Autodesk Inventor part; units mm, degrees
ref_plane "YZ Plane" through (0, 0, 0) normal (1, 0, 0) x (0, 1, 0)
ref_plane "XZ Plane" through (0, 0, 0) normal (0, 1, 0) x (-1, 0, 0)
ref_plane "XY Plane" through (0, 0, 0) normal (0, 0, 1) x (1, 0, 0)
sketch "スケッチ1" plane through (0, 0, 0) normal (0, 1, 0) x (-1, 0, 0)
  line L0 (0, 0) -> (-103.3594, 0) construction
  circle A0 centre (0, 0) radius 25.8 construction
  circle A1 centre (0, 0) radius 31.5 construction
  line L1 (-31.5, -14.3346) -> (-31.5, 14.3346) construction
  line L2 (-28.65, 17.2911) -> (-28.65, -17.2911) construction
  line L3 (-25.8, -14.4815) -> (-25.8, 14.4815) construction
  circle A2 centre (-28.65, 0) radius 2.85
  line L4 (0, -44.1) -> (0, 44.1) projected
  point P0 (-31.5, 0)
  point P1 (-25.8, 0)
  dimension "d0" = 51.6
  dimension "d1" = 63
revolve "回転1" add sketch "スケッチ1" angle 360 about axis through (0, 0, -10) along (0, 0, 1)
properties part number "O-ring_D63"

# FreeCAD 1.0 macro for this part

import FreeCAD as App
import Part
import Sketcher
from FreeCAD import Vector
Q = App.Units.Quantity

doc = App.newDocument("Part")
body = doc.addObject("PartDesign::Body", "Body")

# Sketch on XZ plane
sketch1 = body.newObject("Sketcher::SketchObject", "Sketch")
sketch1.AttachmentSupport = (doc.getObject("XZ_Plane"), [""])
sketch1.MapMode = "FlatFace"
sketch1.addGeometry(Part.Circle(Vector(28.6, 0, 0), Vector(0, 0, 1), 2.9), False)
sketch1.addConstraint(Sketcher.Constraint("PointOnObject", 0, 3, -1))
sketch1.addConstraint(Sketcher.Constraint("Diameter", 0, Q("5.7 mm")))
sketch1.addConstraint(Sketcher.Constraint("DistanceX", -1, 1, 0, 3, Q("28.65 mm")))
revolution = body.newObject("PartDesign::Revolution", "Revolution")
revolution.Profile = sketch1
revolution.ReferenceAxis = (sketch1, ["V_Axis"])
revolution.Angle = 360

doc.recompute()
